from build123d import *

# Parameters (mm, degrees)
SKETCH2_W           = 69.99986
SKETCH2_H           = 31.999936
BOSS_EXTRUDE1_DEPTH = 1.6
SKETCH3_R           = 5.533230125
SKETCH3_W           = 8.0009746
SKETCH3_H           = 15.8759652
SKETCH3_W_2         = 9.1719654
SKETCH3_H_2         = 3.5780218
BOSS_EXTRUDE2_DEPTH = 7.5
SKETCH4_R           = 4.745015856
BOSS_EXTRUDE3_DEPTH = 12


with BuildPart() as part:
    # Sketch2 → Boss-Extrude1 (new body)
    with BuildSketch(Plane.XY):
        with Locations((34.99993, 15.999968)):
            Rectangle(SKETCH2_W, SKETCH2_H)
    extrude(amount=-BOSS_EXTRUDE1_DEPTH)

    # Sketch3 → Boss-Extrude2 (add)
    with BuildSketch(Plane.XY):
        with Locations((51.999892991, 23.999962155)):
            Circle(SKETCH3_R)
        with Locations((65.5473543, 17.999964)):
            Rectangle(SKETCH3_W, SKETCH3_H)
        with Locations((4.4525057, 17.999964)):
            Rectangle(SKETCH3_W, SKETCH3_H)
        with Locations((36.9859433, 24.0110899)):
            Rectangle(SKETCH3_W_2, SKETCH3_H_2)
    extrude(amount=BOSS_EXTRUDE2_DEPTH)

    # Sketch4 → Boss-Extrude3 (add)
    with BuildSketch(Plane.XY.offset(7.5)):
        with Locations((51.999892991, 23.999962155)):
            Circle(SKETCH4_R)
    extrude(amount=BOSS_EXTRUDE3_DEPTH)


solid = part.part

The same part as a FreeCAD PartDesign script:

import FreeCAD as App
import Part
import Sketcher


def add_polygon(sketch, points):
    """Adds a closed chain of lines whose ends are joined by coincident constraints."""
    first, n = sketch.GeometryCount, len(points)
    for a, b in zip(points, points[1:] + points[:1]):
        sketch.addGeometry(Part.LineSegment(App.Vector(*a, 0), App.Vector(*b, 0)), False)
    for i in range(n):
        sketch.addConstraint(Sketcher.Constraint("Coincident", first + i, 2, first + (i + 1) % n, 1))

doc = App.newDocument("Part")
params = doc.addObject("Spreadsheet::Sheet", "Params")
for row, (alias, value) in enumerate([
    ("pad1_length", "1.6 mm"),
    ("pad2_length", "7.5 mm"),
    ("pad3_length", "12 mm"),
], start=1):
    params.set(f"A{row}", alias)
    params.set(f"B{row}", "=" + value)
    params.setAlias(f"B{row}", alias)

body = doc.addObject("PartDesign::Body", "Body")

# Sketch on XY plane
sketch1 = doc.addObject("Sketcher::SketchObject", "Sketch")
body.addObject(sketch1)
sketch1.AttachmentSupport = (doc.XY_Plane, [""])
sketch1.MapMode = "FlatFace"
add_polygon(sketch1, [(0, 32), (0, 0), (70, 0), (70, 32)])  # lines 0-3
sketch1.addConstraint([
    Sketcher.Constraint("Vertical", 0),
    Sketcher.Constraint("Horizontal", 1),
    Sketcher.Constraint("Vertical", 2),
    Sketcher.Constraint("Horizontal", 3),
    Sketcher.Constraint("Coincident", 0, 2, -1, 1),
    Sketcher.Constraint("DistanceX", 1, 1, 1, 2, 69.99986),
    Sketcher.Constraint("DistanceY", 0, 2, 0, 1, 31.999936),
])
pad1 = doc.addObject("PartDesign::Pad", "Pad")
body.addObject(pad1)
pad1.Profile = sketch1
pad1.setExpression("Length", "Params.pad1_length")
pad1.Reversed = True

# Sketch on XY plane
sketch2 = doc.addObject("Sketcher::SketchObject", "Sketch001")
body.addObject(sketch2)
sketch2.AttachmentSupport = (doc.XY_Plane, [""])
sketch2.MapMode = "FlatFace"
sketch2.addGeometry(Part.Circle(App.Vector(52, 24, 0), App.Vector(0, 0, 1), 5.5), False)  # 0
add_polygon(sketch2, [(61.5, 25.9), (61.5, 10.1), (69.5, 10.1), (69.5, 25.9)])  # lines 1-4
add_polygon(sketch2, [(0.5, 25.9), (0.5, 10.1), (8.5, 10.1), (8.5, 25.9)])  # lines 5-8
add_polygon(sketch2, [(32.4, 25.8), (32.4, 22.2), (41.6, 22.2), (41.6, 25.8)])  # lines 9-12
sketch2.addConstraint([
    Sketcher.Constraint("Vertical", 1),
    Sketcher.Constraint("Horizontal", 2),
    Sketcher.Constraint("Vertical", 3),
    Sketcher.Constraint("Horizontal", 4),
    Sketcher.Constraint("Vertical", 5),
    Sketcher.Constraint("Horizontal", 6),
    Sketcher.Constraint("Vertical", 7),
    Sketcher.Constraint("Horizontal", 8),
    Sketcher.Constraint("Vertical", 9),
    Sketcher.Constraint("Horizontal", 10),
    Sketcher.Constraint("Vertical", 11),
    Sketcher.Constraint("Horizontal", 12),
    Sketcher.Constraint("Horizontal", 2, 2, 5, 2),
    Sketcher.Constraint("Horizontal", 4, 2, 7, 2),
    Sketcher.Constraint("Equal", 4, 6),
    Sketcher.Constraint("Diameter", 0, 11.06646),
    Sketcher.Constraint("DistanceY", 9, 2, 9, 1, 3.578022),
    Sketcher.Constraint("DistanceY", -1, 1, 11, 2, 25.800101),
    Sketcher.Constraint("DistanceX", 6, 2, 0, 3, 43.5469),
    Sketcher.Constraint("DistanceX", 2, 1, 2, 2, 8.000975),
    Sketcher.Constraint("DistanceX", 10, 1, 10, 2, 9.171965),
    Sketcher.Constraint("DistanceY", 1, 2, 1, 1, 15.875965),
    Sketcher.Constraint("DistanceY", -1, 1, 1, 2, 10.061981),
    Sketcher.Constraint("DistanceX", -1, 1, 2, 2, 69.547842),
    Sketcher.Constraint("DistanceX", -1, 1, 5, 2, 0.452018),
    Sketcher.Constraint("DistanceX", -1, 1, 9, 2, 32.399961),
    Sketcher.Constraint("DistanceY", 1, 2, 0, 3, 13.937981),
])
pad2 = doc.addObject("PartDesign::Pad", "Pad001")
body.addObject(pad2)
pad2.Profile = sketch2
pad2.setExpression("Length", "Params.pad2_length")

# Sketch on XY plane
sketch3 = doc.addObject("Sketcher::SketchObject", "Sketch002")
body.addObject(sketch3)
sketch3.AttachmentSupport = (doc.XY_Plane, [""])
sketch3.MapMode = "FlatFace"
sketch3.AttachmentOffset = App.Placement(App.Vector(0, 0, 7.5), App.Rotation())
sketch3.addGeometry(Part.Circle(App.Vector(52, 24, 0), App.Vector(0, 0, 1), 4.7), False)
sketch3.addConstraint([
    Sketcher.Constraint("Diameter", 0, 9.490032),
    Sketcher.Constraint("DistanceX", -1, 1, 0, 3, 51.999893),
    Sketcher.Constraint("DistanceY", -1, 1, 0, 3, 23.999962),
])
pad3 = doc.addObject("PartDesign::Pad", "Pad002")
body.addObject(pad3)
pad3.Profile = sketch3
pad3.setExpression("Length", "Params.pad3_length")

doc.recompute()
